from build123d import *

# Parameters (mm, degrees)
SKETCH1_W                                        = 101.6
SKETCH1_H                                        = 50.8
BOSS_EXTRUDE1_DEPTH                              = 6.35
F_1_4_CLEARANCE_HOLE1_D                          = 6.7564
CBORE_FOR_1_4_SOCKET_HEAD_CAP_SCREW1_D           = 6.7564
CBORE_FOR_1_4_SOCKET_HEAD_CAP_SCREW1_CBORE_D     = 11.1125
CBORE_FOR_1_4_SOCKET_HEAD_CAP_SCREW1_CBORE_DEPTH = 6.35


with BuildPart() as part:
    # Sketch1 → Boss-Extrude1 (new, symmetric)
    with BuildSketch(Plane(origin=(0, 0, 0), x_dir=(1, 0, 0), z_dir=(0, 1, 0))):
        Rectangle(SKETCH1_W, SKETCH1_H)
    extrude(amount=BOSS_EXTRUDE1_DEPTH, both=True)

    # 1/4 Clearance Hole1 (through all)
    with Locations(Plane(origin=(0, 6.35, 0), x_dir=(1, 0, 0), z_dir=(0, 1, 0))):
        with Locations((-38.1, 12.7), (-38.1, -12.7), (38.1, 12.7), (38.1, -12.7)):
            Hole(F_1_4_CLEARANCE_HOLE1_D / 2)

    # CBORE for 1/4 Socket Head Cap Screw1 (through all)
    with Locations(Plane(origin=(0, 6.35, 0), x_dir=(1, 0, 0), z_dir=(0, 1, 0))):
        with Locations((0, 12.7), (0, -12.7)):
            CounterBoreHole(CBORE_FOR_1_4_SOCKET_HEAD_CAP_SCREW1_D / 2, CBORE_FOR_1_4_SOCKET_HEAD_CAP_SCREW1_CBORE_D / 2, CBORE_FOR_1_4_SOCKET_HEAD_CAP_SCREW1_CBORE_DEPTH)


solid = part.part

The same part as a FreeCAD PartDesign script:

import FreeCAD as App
import Part
import Sketcher
Q = App.Units.Quantity


def add_polygon(sketch, points):
    """Adds a closed chain of lines whose ends are joined by coincident constraints."""
    first, n = sketch.GeometryCount, len(points)
    for a, b in zip(points, points[1:] + points[:1]):
        sketch.addGeometry(Part.LineSegment(App.Vector(*a, 0), App.Vector(*b, 0)), False)
    for i in range(n):
        sketch.addConstraint(Sketcher.Constraint("Coincident", first + i, 2, first + (i + 1) % n, 1))

doc = App.newDocument("Part")
body = doc.addObject("PartDesign::Body", "Body")

# Sketch on XZ plane
sketch1 = body.newObject("Sketcher::SketchObject", "Sketch")
sketch1.AttachmentSupport = (doc.getObject("XZ_Plane"), [""])
sketch1.MapMode = "FlatFace"
add_polygon(sketch1, [(-50.8, -25.4), (-50.8, 25.4), (50.8, 25.4), (50.8, -25.4)])  # lines 0-3
sketch1.addConstraint(Sketcher.Constraint("Vertical", 0))
sketch1.addConstraint(Sketcher.Constraint("Horizontal", 1))
sketch1.addConstraint(Sketcher.Constraint("Vertical", 2))
sketch1.addConstraint(Sketcher.Constraint("Horizontal", 3))
sketch1.addConstraint(Sketcher.Constraint("Symmetric", 0, 2, 2, 2, -1, 1))
sketch1.addConstraint(Sketcher.Constraint("DistanceX", 1, 1, 1, 2, Q("4 in")))
sketch1.addConstraint(Sketcher.Constraint("DistanceY", 0, 1, 0, 2, Q("2 in")))
pad1 = body.newObject("PartDesign::Pad", "Pad")
pad1.Profile = sketch1
pad1.Length = Q("0.5 in")
pad1.Midplane = True

# Sketch on XZ plane
sketch2 = body.newObject("Sketcher::SketchObject", "Sketch001")
sketch2.AttachmentSupport = (doc.getObject("XZ_Plane"), [""])
sketch2.MapMode = "FlatFace"
sketch2.AttachmentOffset = App.Placement(App.Vector(0, 0, -0.25 * 25.4), App.Rotation())
sketch2.addGeometry(Part.Circle(App.Vector(-38.1, -12.7, 0), App.Vector(0, 0, 1), 3.3782), False)
sketch2.addGeometry(Part.Circle(App.Vector(-38.1, 12.7, 0), App.Vector(0, 0, 1), 3.3782), False)
sketch2.addGeometry(Part.Circle(App.Vector(38.1, -12.7, 0), App.Vector(0, 0, 1), 3.3782), False)
sketch2.addGeometry(Part.Circle(App.Vector(38.1, 12.7, 0), App.Vector(0, 0, 1), 3.3782), False)
sketch2.addConstraint(Sketcher.Constraint("Equal", 0, 1))
sketch2.addConstraint(Sketcher.Constraint("Equal", 1, 2))
sketch2.addConstraint(Sketcher.Constraint("Equal", 2, 3))
sketch2.addConstraint(Sketcher.Constraint("Symmetric", 1, 3, 2, 3, -1, 1))
sketch2.addConstraint(Sketcher.Constraint("Symmetric", 0, 3, 3, 3, -1, 1))
sketch2.addConstraint(Sketcher.Constraint("Symmetric", 0, 3, 2, 3, -2))
sketch2.addConstraint(Sketcher.Constraint("Diameter", 0, Q("0.266 in")))
sketch2.addConstraint(Sketcher.Constraint("DistanceY", 0, 3, 1, 3, Q("1 in")))
sketch2.addConstraint(Sketcher.Constraint("DistanceX", 0, 3, 2, 3, Q("3 in")))
doc.recompute()
hole = body.newObject("PartDesign::Hole", "Hole")
hole.Profile = sketch2
hole.ThreadType = "None"
hole.Diameter = Q("0.266 in")
hole.DepthType = "ThroughAll"
hole.Reversed = True

# Sketch on XZ plane
sketch3 = body.newObject("Sketcher::SketchObject", "Sketch002")
sketch3.AttachmentSupport = (doc.getObject("XZ_Plane"), [""])
sketch3.MapMode = "FlatFace"
sketch3.AttachmentOffset = App.Placement(App.Vector(0, 0, -0.25 * 25.4), App.Rotation())
sketch3.addGeometry(Part.Circle(App.Vector(0, -12.7, 0), App.Vector(0, 0, 1), 3.3782), False)
sketch3.addGeometry(Part.Circle(App.Vector(0, 12.7, 0), App.Vector(0, 0, 1), 3.3782), False)
sketch3.addConstraint(Sketcher.Constraint("Equal", 0, 1))
sketch3.addConstraint(Sketcher.Constraint("Symmetric", 0, 3, 1, 3, -1, 1))
sketch3.addConstraint(Sketcher.Constraint("PointOnObject", 0, 3, -2))
sketch3.addConstraint(Sketcher.Constraint("Diameter", 0, Q("0.266 in")))
sketch3.addConstraint(Sketcher.Constraint("DistanceY", 0, 3, 1, 3, Q("1 in")))
doc.recompute()
hole2 = body.newObject("PartDesign::Hole", "Hole001")
hole2.Profile = sketch3
hole2.ThreadType = "None"
hole2.Diameter = Q("0.266 in")
hole2.DepthType = "ThroughAll"
hole2.HoleCutType = "Counterbore"
hole2.HoleCutDiameter = Q("0.4375 in")
hole2.HoleCutDepth = Q("0.25 in")
hole2.Reversed = True

doc.recompute()
